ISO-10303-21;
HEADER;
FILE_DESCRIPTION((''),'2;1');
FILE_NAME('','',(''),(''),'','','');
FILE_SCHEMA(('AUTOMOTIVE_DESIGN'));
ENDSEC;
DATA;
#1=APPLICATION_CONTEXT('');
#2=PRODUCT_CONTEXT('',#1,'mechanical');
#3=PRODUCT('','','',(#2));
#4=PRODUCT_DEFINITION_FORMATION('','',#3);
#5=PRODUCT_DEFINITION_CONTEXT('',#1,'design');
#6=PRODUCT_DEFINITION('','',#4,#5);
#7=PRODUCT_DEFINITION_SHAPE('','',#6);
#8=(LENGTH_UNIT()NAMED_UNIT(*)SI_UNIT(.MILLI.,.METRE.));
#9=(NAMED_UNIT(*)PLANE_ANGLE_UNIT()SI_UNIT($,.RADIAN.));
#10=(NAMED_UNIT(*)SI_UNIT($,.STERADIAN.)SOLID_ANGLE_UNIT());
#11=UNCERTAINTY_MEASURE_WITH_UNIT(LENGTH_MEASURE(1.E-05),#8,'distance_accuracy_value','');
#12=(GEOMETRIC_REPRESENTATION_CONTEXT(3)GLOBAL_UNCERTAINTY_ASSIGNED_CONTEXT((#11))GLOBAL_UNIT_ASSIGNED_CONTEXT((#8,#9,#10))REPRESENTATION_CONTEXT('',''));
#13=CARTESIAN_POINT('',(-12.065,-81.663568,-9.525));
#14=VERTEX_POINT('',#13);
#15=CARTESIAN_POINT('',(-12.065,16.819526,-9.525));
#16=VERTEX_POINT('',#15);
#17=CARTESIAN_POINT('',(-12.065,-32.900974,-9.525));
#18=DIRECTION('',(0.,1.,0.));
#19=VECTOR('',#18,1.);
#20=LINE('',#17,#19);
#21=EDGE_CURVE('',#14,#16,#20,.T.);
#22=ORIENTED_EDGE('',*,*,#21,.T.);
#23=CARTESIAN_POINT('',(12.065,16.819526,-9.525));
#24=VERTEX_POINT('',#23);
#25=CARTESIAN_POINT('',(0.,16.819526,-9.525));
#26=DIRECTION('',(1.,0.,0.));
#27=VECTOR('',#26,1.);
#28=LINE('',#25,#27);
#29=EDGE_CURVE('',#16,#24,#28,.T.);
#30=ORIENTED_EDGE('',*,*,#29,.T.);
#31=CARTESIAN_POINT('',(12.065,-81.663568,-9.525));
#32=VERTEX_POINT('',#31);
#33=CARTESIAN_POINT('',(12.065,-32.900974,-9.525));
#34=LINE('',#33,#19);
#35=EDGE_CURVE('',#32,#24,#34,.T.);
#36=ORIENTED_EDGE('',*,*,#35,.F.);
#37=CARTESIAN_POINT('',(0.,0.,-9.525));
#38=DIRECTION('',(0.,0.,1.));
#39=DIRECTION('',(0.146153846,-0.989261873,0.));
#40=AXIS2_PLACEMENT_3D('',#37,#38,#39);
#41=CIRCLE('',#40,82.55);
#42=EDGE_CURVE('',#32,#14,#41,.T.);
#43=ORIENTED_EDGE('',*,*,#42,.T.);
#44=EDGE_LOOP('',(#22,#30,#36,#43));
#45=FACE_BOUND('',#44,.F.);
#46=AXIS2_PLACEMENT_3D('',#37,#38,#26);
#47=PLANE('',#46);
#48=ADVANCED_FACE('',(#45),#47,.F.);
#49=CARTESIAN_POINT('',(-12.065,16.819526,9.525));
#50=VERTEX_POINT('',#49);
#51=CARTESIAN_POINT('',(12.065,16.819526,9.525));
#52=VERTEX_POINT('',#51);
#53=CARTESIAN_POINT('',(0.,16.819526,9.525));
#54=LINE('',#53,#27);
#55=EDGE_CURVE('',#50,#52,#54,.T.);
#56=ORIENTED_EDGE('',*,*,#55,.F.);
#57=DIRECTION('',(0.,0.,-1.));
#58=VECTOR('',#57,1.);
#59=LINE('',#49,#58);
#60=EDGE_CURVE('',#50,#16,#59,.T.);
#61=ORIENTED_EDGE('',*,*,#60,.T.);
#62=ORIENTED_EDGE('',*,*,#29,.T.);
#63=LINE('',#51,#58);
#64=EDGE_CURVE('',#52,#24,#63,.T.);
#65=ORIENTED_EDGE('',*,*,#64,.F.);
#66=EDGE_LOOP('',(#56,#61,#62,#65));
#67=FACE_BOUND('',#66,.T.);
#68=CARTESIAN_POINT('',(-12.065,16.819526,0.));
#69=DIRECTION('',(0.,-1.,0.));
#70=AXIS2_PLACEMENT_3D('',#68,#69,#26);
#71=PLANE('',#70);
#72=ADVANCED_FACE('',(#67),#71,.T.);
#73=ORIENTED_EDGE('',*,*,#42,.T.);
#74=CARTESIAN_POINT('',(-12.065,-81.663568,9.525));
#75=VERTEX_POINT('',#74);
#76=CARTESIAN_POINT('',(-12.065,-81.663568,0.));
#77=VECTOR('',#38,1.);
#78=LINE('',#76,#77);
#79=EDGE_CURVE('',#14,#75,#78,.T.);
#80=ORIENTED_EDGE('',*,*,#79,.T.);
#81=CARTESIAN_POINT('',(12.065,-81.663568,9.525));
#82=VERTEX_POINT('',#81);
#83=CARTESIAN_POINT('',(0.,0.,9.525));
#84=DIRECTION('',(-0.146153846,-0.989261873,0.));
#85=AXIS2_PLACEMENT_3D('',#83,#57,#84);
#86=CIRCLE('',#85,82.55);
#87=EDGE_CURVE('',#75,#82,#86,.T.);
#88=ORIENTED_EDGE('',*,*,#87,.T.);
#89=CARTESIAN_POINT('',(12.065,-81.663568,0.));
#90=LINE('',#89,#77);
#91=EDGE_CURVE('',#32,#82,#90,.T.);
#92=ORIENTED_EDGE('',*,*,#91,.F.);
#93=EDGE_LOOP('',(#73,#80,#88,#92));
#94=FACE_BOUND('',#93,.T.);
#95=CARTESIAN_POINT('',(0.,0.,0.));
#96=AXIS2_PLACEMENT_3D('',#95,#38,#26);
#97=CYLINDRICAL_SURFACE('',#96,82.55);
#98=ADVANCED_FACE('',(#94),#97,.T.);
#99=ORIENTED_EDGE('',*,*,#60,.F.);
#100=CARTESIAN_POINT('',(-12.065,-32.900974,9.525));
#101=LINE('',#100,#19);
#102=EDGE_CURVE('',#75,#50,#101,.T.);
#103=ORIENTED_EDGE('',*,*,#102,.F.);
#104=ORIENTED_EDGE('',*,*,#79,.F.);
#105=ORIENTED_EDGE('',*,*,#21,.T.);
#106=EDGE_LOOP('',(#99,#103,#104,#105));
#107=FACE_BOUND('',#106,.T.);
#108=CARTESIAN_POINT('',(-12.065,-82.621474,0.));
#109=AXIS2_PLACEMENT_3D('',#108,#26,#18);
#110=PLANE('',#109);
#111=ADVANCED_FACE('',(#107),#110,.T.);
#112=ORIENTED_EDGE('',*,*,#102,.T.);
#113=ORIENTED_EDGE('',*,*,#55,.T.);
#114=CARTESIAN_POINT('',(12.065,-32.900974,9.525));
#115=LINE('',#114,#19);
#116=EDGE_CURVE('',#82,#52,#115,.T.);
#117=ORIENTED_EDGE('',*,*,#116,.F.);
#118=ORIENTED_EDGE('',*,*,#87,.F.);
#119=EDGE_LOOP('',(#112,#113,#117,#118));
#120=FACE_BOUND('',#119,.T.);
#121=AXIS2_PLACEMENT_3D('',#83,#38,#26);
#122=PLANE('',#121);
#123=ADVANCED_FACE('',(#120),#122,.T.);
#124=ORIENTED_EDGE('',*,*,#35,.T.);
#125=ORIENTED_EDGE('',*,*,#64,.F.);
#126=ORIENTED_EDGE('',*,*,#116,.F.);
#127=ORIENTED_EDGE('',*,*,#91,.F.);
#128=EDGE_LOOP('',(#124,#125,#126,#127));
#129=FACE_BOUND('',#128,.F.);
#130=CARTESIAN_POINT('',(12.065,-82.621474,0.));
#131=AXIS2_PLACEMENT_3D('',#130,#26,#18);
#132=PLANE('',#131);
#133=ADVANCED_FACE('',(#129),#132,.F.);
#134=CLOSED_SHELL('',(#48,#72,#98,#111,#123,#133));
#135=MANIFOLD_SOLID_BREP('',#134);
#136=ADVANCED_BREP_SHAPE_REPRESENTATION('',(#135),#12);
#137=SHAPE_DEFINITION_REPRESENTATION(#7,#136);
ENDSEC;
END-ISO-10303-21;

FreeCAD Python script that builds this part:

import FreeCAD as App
import Part
import Sketcher
from FreeCAD import Vector
Q = App.Units.Quantity

doc = App.newDocument("Part")
params = doc.addObject("Spreadsheet::Sheet", "Params")
for row, (alias, value) in enumerate([
    ("sketch1_diameter", "6.5 in"),
    ("pad1_length", "0.75 in"),
    ("sketch2_width", "0.95 in"),
    ("sketch2_height", "3.915 in"),
    ("pocket1_length", "0.75 in"),
], start=1):
    params.set(f"A{row}", alias)
    params.set(f"B{row}", "=" + value)
    params.setAlias(f"B{row}", alias)

body = doc.addObject("PartDesign::Body", "Body")

# Sketch on XY plane
sketch1 = body.newObject("Sketcher::SketchObject", "Sketch")
sketch1.AttachmentSupport = (doc.getObject("XY_Plane"), [""])
sketch1.MapMode = "FlatFace"
sketch1.addGeometry(Part.Circle(Vector(0, 0, 0), Vector(0, 0, 1), 82.55), False)
sketch1.addConstraint([
    Sketcher.Constraint("Coincident", 0, 3, -1, 1),
    Sketcher.Constraint("Diameter", 0, Q("6.5 in")),
])
sketch1.setExpression("Constraints[1]", "Params.sketch1_diameter")
pad1 = body.newObject("PartDesign::Pad", "Pad")
pad1.Profile = sketch1
pad1.setExpression("Length", "Params.pad1_length")
pad1.Midplane = True

# Sketch on XY plane
sketch2 = body.newObject("Sketcher::SketchObject", "Sketch001")
sketch2.AttachmentSupport = (doc.getObject("XY_Plane"), [""])
sketch2.MapMode = "FlatFace"
sketch2.addGeometry([
    Part.LineSegment(Vector(-12.065, 16.819526, 0), Vector(-12.065, -82.621474, 0)),
    Part.LineSegment(Vector(-12.065, -82.621474, 0), Vector(12.065, -82.621474, 0)),
    Part.LineSegment(Vector(12.065, -82.621474, 0), Vector(12.065, 16.819526, 0)),
    Part.LineSegment(Vector(12.065, 16.819526, 0), Vector(-12.065, 16.819526, 0)),
], False)
sketch2.addConstraint([
    Sketcher.Constraint("Coincident", 0, 2, 1, 1),
    Sketcher.Constraint("Coincident", 1, 2, 2, 1),
    Sketcher.Constraint("Coincident", 2, 2, 3, 1),
    Sketcher.Constraint("Coincident", 3, 2, 0, 1),
    Sketcher.Constraint("Vertical", 0),
    Sketcher.Constraint("Horizontal", 1),
    Sketcher.Constraint("Vertical", 2),
    Sketcher.Constraint("Horizontal", 3),
    Sketcher.Constraint("DistanceX", 1, 1, 1, 2, Q("0.95 in")),
    Sketcher.Constraint("DistanceY", 0, 2, 0, 1, Q("3.915 in")),
    Sketcher.Constraint("DistanceX", 0, 2, -1, 1, Q("0.475 in")),
    Sketcher.Constraint("DistanceY", 0, 2, -1, 1, 82.621474),
])
sketch2.setExpression("Constraints[8]", "Params.sketch2_width")
sketch2.setExpression("Constraints[9]", "Params.sketch2_height")
pocket1 = body.newObject("PartDesign::Pocket", "Pocket")
pocket1.Profile = sketch2
pocket1.setExpression("Length", "Params.pocket1_length")
pocket1.Midplane = True

doc.recompute()
